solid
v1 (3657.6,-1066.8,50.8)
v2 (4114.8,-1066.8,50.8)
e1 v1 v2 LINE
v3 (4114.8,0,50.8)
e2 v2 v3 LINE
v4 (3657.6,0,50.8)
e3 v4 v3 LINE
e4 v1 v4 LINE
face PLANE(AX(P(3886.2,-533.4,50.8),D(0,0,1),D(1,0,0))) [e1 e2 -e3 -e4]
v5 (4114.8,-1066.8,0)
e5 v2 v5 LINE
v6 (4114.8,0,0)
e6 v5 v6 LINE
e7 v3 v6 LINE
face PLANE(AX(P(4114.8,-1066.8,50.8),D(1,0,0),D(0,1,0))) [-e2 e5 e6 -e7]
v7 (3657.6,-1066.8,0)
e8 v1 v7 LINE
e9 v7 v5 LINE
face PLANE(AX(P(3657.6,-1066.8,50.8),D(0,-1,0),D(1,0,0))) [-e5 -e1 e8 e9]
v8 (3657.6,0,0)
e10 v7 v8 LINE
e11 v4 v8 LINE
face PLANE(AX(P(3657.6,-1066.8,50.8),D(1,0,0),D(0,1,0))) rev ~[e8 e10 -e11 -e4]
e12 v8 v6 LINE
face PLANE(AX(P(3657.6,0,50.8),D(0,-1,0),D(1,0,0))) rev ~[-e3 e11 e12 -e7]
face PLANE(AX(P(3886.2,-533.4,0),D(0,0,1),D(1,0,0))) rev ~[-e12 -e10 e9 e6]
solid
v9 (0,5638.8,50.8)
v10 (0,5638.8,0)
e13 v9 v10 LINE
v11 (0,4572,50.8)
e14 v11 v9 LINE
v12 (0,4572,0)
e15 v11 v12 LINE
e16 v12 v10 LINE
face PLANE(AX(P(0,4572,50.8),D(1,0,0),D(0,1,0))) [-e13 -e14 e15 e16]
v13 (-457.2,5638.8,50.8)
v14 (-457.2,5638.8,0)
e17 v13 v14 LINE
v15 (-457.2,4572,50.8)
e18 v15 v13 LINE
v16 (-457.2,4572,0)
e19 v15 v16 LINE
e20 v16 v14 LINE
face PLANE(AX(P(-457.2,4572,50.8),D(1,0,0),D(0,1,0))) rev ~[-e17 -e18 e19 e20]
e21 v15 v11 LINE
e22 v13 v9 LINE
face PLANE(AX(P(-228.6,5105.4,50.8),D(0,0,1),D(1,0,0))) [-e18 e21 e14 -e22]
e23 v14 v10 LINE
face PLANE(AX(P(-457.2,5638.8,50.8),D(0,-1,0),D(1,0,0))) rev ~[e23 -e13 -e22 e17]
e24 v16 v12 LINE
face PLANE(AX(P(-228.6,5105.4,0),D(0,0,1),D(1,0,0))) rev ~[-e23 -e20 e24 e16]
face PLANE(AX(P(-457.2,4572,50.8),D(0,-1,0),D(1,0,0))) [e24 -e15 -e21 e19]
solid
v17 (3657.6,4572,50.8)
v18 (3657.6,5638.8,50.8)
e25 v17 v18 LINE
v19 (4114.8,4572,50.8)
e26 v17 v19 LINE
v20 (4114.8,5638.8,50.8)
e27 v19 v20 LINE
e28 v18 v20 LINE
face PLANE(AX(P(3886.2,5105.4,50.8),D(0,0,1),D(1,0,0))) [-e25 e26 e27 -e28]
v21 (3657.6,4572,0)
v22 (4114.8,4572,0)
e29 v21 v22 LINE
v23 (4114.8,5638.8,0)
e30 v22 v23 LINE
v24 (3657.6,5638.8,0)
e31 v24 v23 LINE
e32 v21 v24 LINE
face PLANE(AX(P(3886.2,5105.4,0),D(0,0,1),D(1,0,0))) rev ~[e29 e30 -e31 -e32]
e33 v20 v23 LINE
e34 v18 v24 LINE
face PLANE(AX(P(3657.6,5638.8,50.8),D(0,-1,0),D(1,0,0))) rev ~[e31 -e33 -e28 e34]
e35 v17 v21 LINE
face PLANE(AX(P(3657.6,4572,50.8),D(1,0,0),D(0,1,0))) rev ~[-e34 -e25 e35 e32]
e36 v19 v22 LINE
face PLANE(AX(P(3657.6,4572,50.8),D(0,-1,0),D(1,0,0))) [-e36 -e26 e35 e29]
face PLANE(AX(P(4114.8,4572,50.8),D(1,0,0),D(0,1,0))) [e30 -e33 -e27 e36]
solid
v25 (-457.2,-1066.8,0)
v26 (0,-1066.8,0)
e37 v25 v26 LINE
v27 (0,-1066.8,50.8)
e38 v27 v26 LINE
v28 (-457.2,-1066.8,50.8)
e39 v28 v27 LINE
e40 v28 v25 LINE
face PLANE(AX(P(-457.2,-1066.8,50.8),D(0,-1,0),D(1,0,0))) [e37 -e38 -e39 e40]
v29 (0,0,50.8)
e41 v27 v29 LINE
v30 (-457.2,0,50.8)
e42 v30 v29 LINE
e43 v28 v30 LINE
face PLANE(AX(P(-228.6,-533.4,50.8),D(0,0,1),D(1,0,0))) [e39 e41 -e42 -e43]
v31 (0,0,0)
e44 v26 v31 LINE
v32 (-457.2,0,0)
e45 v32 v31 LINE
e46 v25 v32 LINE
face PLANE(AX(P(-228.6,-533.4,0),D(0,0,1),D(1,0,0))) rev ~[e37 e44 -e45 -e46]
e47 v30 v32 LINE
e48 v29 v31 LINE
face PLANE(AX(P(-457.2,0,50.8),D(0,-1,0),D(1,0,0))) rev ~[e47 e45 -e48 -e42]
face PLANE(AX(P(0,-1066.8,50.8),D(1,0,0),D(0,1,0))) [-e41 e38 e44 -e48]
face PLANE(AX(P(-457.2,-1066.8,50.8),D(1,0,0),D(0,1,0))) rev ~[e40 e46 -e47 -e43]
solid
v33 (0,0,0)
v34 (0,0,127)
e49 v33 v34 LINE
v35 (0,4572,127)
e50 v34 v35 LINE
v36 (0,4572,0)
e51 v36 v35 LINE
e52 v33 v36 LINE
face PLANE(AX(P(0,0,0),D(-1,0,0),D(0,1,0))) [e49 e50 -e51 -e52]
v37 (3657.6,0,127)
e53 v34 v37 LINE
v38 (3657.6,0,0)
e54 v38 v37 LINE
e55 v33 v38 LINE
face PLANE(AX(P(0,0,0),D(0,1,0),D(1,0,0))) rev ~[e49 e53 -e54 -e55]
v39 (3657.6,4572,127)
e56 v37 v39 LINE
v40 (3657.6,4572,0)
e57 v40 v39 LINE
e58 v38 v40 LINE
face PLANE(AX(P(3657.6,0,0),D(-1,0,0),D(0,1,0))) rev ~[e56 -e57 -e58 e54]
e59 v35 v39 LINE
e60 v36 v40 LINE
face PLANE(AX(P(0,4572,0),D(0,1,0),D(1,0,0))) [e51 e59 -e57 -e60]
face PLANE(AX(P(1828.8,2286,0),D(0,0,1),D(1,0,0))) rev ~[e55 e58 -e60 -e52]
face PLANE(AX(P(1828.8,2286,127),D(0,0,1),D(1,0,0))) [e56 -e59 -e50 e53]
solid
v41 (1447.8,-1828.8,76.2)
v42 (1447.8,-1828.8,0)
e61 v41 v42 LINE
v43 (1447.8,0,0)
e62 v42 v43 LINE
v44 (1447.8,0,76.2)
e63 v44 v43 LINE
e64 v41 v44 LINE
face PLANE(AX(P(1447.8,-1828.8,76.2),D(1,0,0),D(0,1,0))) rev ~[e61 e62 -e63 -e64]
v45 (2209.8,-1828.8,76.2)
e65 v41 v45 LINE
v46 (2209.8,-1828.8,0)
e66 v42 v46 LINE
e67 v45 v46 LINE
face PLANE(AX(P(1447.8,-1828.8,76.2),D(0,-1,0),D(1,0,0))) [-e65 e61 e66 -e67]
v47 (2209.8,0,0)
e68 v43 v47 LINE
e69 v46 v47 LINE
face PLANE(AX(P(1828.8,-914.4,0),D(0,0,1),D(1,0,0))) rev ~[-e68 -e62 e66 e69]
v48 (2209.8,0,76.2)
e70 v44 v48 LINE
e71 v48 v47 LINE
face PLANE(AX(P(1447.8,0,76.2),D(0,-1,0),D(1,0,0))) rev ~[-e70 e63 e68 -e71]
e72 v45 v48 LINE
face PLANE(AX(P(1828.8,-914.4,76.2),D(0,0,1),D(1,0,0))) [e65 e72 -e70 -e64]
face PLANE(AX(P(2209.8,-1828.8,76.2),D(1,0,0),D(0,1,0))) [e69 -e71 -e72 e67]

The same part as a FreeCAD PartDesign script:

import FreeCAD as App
import Part
import Sketcher
Q = App.Units.Quantity


def add_polygon(sketch, points):
    """Adds a closed chain of lines whose ends are joined by coincident constraints."""
    first, n = sketch.GeometryCount, len(points)
    for a, b in zip(points, points[1:] + points[:1]):
        sketch.addGeometry(Part.LineSegment(App.Vector(*a, 0), App.Vector(*b, 0)), False)
    for i in range(n):
        sketch.addConstraint(Sketcher.Constraint("Coincident", first + i, 2, first + (i + 1) % n, 1))

doc = App.newDocument("Part")
body = doc.addObject("PartDesign::Body", "Body")

# Sketch on XY plane
sketch1 = body.newObject("Sketcher::SketchObject", "Sketch")
sketch1.AttachmentSupport = (doc.getObject("XY_Plane"), [""])
sketch1.MapMode = "FlatFace"
add_polygon(sketch1, [(0, 4572), (0, 0), (3657.6, 0), (3657.6, 4572)])  # lines 0-3
sketch1.addConstraint([
    Sketcher.Constraint("Vertical", 0),
    Sketcher.Constraint("Horizontal", 1),
    Sketcher.Constraint("Vertical", 2),
    Sketcher.Constraint("Horizontal", 3),
    Sketcher.Constraint("Coincident", 0, 2, -1, 1),
    Sketcher.Constraint("DistanceX", 1, 1, 1, 2, Q("144 in")),
    Sketcher.Constraint("DistanceY", 0, 2, 0, 1, Q("180 in")),
])
pad1 = body.newObject("PartDesign::Pad", "Pad")
pad1.Profile = sketch1
pad1.Length = Q("5 in")
body2 = doc.addObject("PartDesign::Body", "Body001")

# Sketch on XY plane
sketch2 = body2.newObject("Sketcher::SketchObject", "Sketch001")
sketch2.AttachmentSupport = (doc.getObject("XY_Plane001"), [""])
sketch2.MapMode = "FlatFace"
sketch2.AttachmentOffset = App.Placement(App.Vector(0, 0, 3 * 25.4), App.Rotation())
add_polygon(sketch2, [(1447.8, 0), (1447.8, -1828.8), (2209.8, -1828.8), (2209.8, 0)])  # lines 0-3
sketch2.addConstraint([
    Sketcher.Constraint("Vertical", 0),
    Sketcher.Constraint("Horizontal", 1),
    Sketcher.Constraint("Vertical", 2),
    Sketcher.Constraint("Horizontal", 3),
    Sketcher.Constraint("PointOnObject", 2, 2, -1),
    Sketcher.Constraint("DistanceX", 1, 1, 1, 2, Q("30 in")),
    Sketcher.Constraint("DistanceY", 0, 2, 0, 1, Q("72 in")),
    Sketcher.Constraint("DistanceX", -1, 1, 0, 2, Q("57 in")),
])
pad2 = body2.newObject("PartDesign::Pad", "Pad001")
pad2.Profile = sketch2
pad2.Length = Q("3 in")
pad2.Reversed = True
body3 = doc.addObject("PartDesign::Body", "Body002")

# Sketch on XY plane
sketch3 = body3.newObject("Sketcher::SketchObject", "Sketch002")
sketch3.AttachmentSupport = (doc.getObject("XY_Plane002"), [""])
sketch3.MapMode = "FlatFace"
sketch3.AttachmentOffset = App.Placement(App.Vector(0, 0, 2 * 25.4), App.Rotation())
add_polygon(sketch3, [(-457.2, 0), (-457.2, -1066.8), (0, -1066.8), (0, 0)])  # lines 0-3
sketch3.addConstraint([
    Sketcher.Constraint("Vertical", 0),
    Sketcher.Constraint("Horizontal", 1),
    Sketcher.Constraint("Vertical", 2),
    Sketcher.Constraint("Horizontal", 3),
    Sketcher.Constraint("Coincident", 2, 2, -1, 1),
    Sketcher.Constraint("DistanceX", 1, 1, 1, 2, Q("18 in")),
    Sketcher.Constraint("DistanceY", 0, 2, 0, 1, Q("42 in")),
])
pad3 = body3.newObject("PartDesign::Pad", "Pad002")
pad3.Profile = sketch3
pad3.Length = Q("2 in")
pad3.Reversed = True
body4 = doc.addObject("PartDesign::Body", "Body003")

# Sketch on XY plane
sketch4 = body4.newObject("Sketcher::SketchObject", "Sketch003")
sketch4.AttachmentSupport = (doc.getObject("XY_Plane003"), [""])
sketch4.MapMode = "FlatFace"
sketch4.AttachmentOffset = App.Placement(App.Vector(0, 0, 2 * 25.4), App.Rotation())
add_polygon(sketch4, [(3657.6, 0), (3657.6, -1066.8), (4114.8, -1066.8), (4114.8, 0)])  # lines 0-3
sketch4.addConstraint([
    Sketcher.Constraint("Vertical", 0),
    Sketcher.Constraint("Horizontal", 1),
    Sketcher.Constraint("Vertical", 2),
    Sketcher.Constraint("Horizontal", 3),
    Sketcher.Constraint("PointOnObject", 2, 2, -1),
    Sketcher.Constraint("DistanceX", 1, 1, 1, 2, Q("18 in")),
    Sketcher.Constraint("DistanceY", 0, 2, 0, 1, Q("42 in")),
    Sketcher.Constraint("DistanceX", -1, 1, 0, 2, Q("144 in")),
])
pad4 = body4.newObject("PartDesign::Pad", "Pad003")
pad4.Profile = sketch4
pad4.Length = Q("2 in")
pad4.Reversed = True
body5 = doc.addObject("PartDesign::Body", "Body004")

# Sketch on XY plane
sketch5 = body5.newObject("Sketcher::SketchObject", "Sketch004")
sketch5.AttachmentSupport = (doc.getObject("XY_Plane004"), [""])
sketch5.MapMode = "FlatFace"
sketch5.AttachmentOffset = App.Placement(App.Vector(0, 0, 2 * 25.4), App.Rotation())
add_polygon(sketch5, [(3657.6, 5638.8), (3657.6, 4572), (4114.8, 4572), (4114.8, 5638.8)])  # lines 0-3
sketch5.addConstraint([
    Sketcher.Constraint("Vertical", 0),
    Sketcher.Constraint("Horizontal", 1),
    Sketcher.Constraint("Vertical", 2),
    Sketcher.Constraint("Horizontal", 3),
    Sketcher.Constraint("DistanceX", 1, 1, 1, 2, Q("18 in")),
    Sketcher.Constraint("DistanceY", 0, 2, 0, 1, Q("42 in")),
    Sketcher.Constraint("DistanceX", -1, 1, 0, 2, Q("144 in")),
    Sketcher.Constraint("DistanceY", -1, 1, 0, 2, Q("180 in")),
])
pad5 = body5.newObject("PartDesign::Pad", "Pad004")
pad5.Profile = sketch5
pad5.Length = Q("2 in")
pad5.Reversed = True
body6 = doc.addObject("PartDesign::Body", "Body005")

# Sketch on XY plane
sketch6 = body6.newObject("Sketcher::SketchObject", "Sketch005")
sketch6.AttachmentSupport = (doc.getObject("XY_Plane005"), [""])
sketch6.MapMode = "FlatFace"
sketch6.AttachmentOffset = App.Placement(App.Vector(0, 0, 2 * 25.4), App.Rotation())
add_polygon(sketch6, [(-457.2, 5638.8), (-457.2, 4572), (0, 4572), (0, 5638.8)])  # lines 0-3
sketch6.addConstraint([
    Sketcher.Constraint("Vertical", 0),
    Sketcher.Constraint("Horizontal", 1),
    Sketcher.Constraint("Vertical", 2),
    Sketcher.Constraint("Horizontal", 3),
    Sketcher.Constraint("PointOnObject", 1, 2, -2),
    Sketcher.Constraint("DistanceX", 1, 1, 1, 2, Q("18 in")),
    Sketcher.Constraint("DistanceY", 0, 2, 0, 1, Q("42 in")),
    Sketcher.Constraint("DistanceY", -1, 1, 0, 2, Q("180 in")),
])
pad6 = body6.newObject("PartDesign::Pad", "Pad005")
pad6.Profile = sketch6
pad6.Length = Q("2 in")
pad6.Reversed = True

doc.recompute()
